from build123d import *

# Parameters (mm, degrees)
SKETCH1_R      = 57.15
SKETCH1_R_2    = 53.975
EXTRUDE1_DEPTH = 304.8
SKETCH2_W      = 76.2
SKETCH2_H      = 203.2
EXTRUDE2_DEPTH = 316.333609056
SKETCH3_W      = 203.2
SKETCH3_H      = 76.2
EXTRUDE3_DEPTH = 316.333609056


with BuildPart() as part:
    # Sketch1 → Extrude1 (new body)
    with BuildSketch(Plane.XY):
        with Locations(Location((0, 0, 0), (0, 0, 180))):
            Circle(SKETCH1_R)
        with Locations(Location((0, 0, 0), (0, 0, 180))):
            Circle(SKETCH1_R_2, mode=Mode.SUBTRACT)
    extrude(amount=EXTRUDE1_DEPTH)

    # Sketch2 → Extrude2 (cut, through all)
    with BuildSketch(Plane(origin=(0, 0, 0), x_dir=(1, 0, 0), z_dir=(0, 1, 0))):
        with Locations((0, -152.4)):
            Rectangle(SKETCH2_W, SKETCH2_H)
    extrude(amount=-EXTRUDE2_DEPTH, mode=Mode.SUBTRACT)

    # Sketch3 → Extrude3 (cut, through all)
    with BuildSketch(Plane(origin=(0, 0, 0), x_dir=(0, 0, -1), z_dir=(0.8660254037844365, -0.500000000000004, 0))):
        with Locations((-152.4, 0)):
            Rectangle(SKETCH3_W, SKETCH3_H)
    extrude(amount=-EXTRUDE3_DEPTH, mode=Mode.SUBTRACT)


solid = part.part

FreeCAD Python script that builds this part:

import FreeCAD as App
import Part
import Sketcher
Q = App.Units.Quantity


def add_polygon(sketch, points):
    """Adds a closed chain of lines whose ends are joined by coincident constraints."""
    first, n = sketch.GeometryCount, len(points)
    for a, b in zip(points, points[1:] + points[:1]):
        sketch.addGeometry(Part.LineSegment(App.Vector(*a, 0), App.Vector(*b, 0)), False)
    for i in range(n):
        sketch.addConstraint(Sketcher.Constraint("Coincident", first + i, 2, first + (i + 1) % n, 1))

doc = App.newDocument("Part")
body = doc.addObject("PartDesign::Body", "Body")

# Sketch on XY plane
sketch1 = body.newObject("Sketcher::SketchObject", "Sketch")
sketch1.AttachmentSupport = (doc.getObject("XY_Plane"), [""])
sketch1.MapMode = "FlatFace"
sketch1.addGeometry(Part.Circle(App.Vector(0, 0, 0), App.Vector(0, 0, 1), 57), False)
sketch1.addGeometry(Part.Circle(App.Vector(0, 0, 0), App.Vector(0, 0, 1), 54), False)
sketch1.addConstraint(Sketcher.Constraint("Coincident", 0, 3, -1, 1))
sketch1.addConstraint(Sketcher.Constraint("Coincident", 1, 3, -1, 1))
sketch1.addConstraint(Sketcher.Constraint("Diameter", 0, Q("4.5 in")))
sketch1.addConstraint(Sketcher.Constraint("Diameter", 1, Q("4.25 in")))
pad1 = body.newObject("PartDesign::Pad", "Pad")
pad1.Profile = sketch1
pad1.Length = Q("12 in")

# Sketch on XZ plane
sketch2 = body.newObject("Sketcher::SketchObject", "Sketch001")
sketch2.AttachmentSupport = (doc.getObject("XZ_Plane"), [""])
sketch2.MapMode = "FlatFace"
add_polygon(sketch2, [(-38, 51), (-38, 254), (38, 254), (38, 51)])  # lines 0-3
sketch2.addConstraint(Sketcher.Constraint("Vertical", 0))
sketch2.addConstraint(Sketcher.Constraint("Horizontal", 1))
sketch2.addConstraint(Sketcher.Constraint("Vertical", 2))
sketch2.addConstraint(Sketcher.Constraint("Horizontal", 3))
sketch2.addConstraint(Sketcher.Constraint("DistanceX", 1, 1, 1, 2, Q("3 in")))
sketch2.addConstraint(Sketcher.Constraint("DistanceY", 0, 1, 0, 2, Q("8 in")))
sketch2.addConstraint(Sketcher.Constraint("DistanceY", -1, 1, 0, 2, Q("10 in")))
sketch2.addConstraint(Sketcher.Constraint("DistanceX", 0, 2, -1, 1, Q("1.5 in")))
pocket1 = body.newObject("PartDesign::Pocket", "Pocket")
pocket1.Profile = sketch2
pocket1.Type = "ThroughAll"
pocket1.Reversed = True

# Sketch on an angled plane
sketch3 = body.newObject("Sketcher::SketchObject", "Sketch002")
sketch3.Placement = App.Placement(App.Vector(0, 0, 0), App.Rotation(App.Vector(0, 0, -1), App.Vector(0.5, 0.866025404, 0), App.Vector(0.866025404, -0.5, 0), "ZXY"))
add_polygon(sketch3, [(-254, 38), (-254, -38), (-51, -38), (-51, 38)])  # lines 0-3
sketch3.addConstraint(Sketcher.Constraint("Vertical", 0))
sketch3.addConstraint(Sketcher.Constraint("Horizontal", 1))
sketch3.addConstraint(Sketcher.Constraint("Vertical", 2))
sketch3.addConstraint(Sketcher.Constraint("Horizontal", 3))
sketch3.addConstraint(Sketcher.Constraint("DistanceX", 1, 1, 1, 2, Q("8 in")))
sketch3.addConstraint(Sketcher.Constraint("DistanceY", 0, 2, 0, 1, Q("3 in")))
sketch3.addConstraint(Sketcher.Constraint("DistanceX", 0, 2, -1, 1, Q("10 in")))
sketch3.addConstraint(Sketcher.Constraint("DistanceY", 0, 2, -1, 1, Q("1.5 in")))
pocket2 = body.newObject("PartDesign::Pocket", "Pocket001")
pocket2.Profile = sketch3
pocket2.Type = "ThroughAll"

doc.recompute()
